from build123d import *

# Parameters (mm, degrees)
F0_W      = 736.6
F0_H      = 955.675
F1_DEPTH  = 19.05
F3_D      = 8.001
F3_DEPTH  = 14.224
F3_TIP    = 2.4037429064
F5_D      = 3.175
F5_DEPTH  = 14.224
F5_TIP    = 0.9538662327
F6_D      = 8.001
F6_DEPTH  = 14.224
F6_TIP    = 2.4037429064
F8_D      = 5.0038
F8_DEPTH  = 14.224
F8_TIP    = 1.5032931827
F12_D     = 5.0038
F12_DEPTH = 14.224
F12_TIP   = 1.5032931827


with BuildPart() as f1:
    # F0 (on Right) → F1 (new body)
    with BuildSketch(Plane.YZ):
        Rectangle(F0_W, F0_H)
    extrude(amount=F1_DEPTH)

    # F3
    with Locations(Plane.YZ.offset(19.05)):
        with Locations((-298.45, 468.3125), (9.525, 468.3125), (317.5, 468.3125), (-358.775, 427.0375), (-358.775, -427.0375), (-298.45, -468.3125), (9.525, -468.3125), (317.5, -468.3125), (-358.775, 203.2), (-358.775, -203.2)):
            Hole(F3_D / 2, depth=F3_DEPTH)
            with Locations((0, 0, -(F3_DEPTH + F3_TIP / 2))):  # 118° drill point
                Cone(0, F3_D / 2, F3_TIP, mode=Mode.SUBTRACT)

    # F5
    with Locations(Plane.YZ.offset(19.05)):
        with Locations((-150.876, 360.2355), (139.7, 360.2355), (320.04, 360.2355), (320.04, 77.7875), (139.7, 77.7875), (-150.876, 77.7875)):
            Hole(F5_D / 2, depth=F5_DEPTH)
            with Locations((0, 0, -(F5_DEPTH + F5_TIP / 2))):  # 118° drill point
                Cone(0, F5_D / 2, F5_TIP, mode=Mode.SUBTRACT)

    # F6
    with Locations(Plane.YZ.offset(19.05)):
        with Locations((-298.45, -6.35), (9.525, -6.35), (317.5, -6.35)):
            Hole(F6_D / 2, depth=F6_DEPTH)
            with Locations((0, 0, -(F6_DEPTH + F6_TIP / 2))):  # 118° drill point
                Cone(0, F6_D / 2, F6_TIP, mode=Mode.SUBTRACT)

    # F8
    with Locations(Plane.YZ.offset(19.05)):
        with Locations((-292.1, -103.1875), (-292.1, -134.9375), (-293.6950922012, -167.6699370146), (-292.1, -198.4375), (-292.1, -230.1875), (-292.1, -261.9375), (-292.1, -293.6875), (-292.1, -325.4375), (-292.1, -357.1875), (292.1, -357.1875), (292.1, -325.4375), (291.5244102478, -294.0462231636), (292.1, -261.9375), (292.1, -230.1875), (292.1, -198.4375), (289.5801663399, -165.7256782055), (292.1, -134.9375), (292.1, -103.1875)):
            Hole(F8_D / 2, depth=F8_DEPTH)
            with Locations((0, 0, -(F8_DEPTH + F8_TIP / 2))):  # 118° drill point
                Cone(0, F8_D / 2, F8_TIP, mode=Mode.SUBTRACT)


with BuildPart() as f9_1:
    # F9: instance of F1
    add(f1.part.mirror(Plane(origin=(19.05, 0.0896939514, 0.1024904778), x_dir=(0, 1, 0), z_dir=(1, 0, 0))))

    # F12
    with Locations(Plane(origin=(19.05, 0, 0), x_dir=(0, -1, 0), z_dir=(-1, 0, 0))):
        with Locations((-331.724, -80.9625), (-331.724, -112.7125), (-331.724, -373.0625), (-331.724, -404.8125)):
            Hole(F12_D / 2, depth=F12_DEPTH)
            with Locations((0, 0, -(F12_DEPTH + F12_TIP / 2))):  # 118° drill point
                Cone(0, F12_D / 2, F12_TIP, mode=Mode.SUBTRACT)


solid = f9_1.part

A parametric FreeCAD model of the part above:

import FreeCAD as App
import Part
import Sketcher

V = App.Vector
Q = App.Units.Quantity

doc = App.newDocument("Part")
body = doc.addObject("PartDesign::Body", "Body")

# Sketch on YZ plane
sketch1 = body.newObject("Sketcher::SketchObject", "Sketch")
sketch1.AttachmentSupport = (doc.getObject("YZ_Plane"), [""])
sketch1.MapMode = "FlatFace"
sketch1.addGeometry(Part.LineSegment(V(-368, 478, 0), V(-368, -478, 0)), False)
sketch1.addGeometry(Part.LineSegment(V(-368, -478, 0), V(368, -478, 0)), False)
sketch1.addGeometry(Part.LineSegment(V(368, -478, 0), V(368, 478, 0)), False)
sketch1.addGeometry(Part.LineSegment(V(368, 478, 0), V(-368, 478, 0)), False)
sketch1.addConstraint(Sketcher.Constraint("Coincident", 0, 2, 1, 1))
sketch1.addConstraint(Sketcher.Constraint("Coincident", 1, 2, 2, 1))
sketch1.addConstraint(Sketcher.Constraint("Coincident", 2, 2, 3, 1))
sketch1.addConstraint(Sketcher.Constraint("Coincident", 3, 2, 0, 1))
sketch1.addConstraint(Sketcher.Constraint("Vertical", 0))
sketch1.addConstraint(Sketcher.Constraint("Horizontal", 1))
sketch1.addConstraint(Sketcher.Constraint("Vertical", 2))
sketch1.addConstraint(Sketcher.Constraint("Horizontal", 3))
sketch1.addConstraint(Sketcher.Constraint("Symmetric", 0, 2, 2, 2, -1, 1))
sketch1.addConstraint(Sketcher.Constraint("DistanceX", 1, 1, 1, 2, Q("29 in")))
sketch1.addConstraint(Sketcher.Constraint("DistanceY", 0, 2, 0, 1, Q("37.625 in")))
pad1 = body.newObject("PartDesign::Pad", "Pad")
pad1.Profile = sketch1
pad1.Length = Q("0.75 in")

# Sketch on YZ plane
sketch2 = body.newObject("Sketcher::SketchObject", "Sketch001")
sketch2.AttachmentSupport = (doc.getObject("YZ_Plane"), [""])
sketch2.MapMode = "FlatFace"
sketch2.AttachmentOffset = App.Placement(V(0, 0, 0.75 * 25.4), App.Rotation())
sketch2.addGeometry(Part.Circle(V(-298.4, 468.3, 0), V(0, 0, 1), 4), False)
sketch2.addGeometry(Part.Circle(V(9.5, 468.3, 0), V(0, 0, 1), 4), False)
sketch2.addGeometry(Part.Circle(V(317.5, 468.3, 0), V(0, 0, 1), 4), False)
sketch2.addGeometry(Part.Circle(V(-358.8, 427, 0), V(0, 0, 1), 4), False)
sketch2.addGeometry(Part.Circle(V(-358.8, -427, 0), V(0, 0, 1), 4), False)
sketch2.addGeometry(Part.Circle(V(-298.4, -468.3, 0), V(0, 0, 1), 4), False)
sketch2.addGeometry(Part.Circle(V(9.5, -468.3, 0), V(0, 0, 1), 4), False)
sketch2.addGeometry(Part.Circle(V(317.5, -468.3, 0), V(0, 0, 1), 4), False)
sketch2.addGeometry(Part.Circle(V(-358.8, 203.2, 0), V(0, 0, 1), 4), False)
sketch2.addGeometry(Part.Circle(V(-358.8, -203.2, 0), V(0, 0, 1), 4), False)
sketch2.addConstraint(Sketcher.Constraint("Equal", 0, 1))
sketch2.addConstraint(Sketcher.Constraint("Equal", 1, 2))
sketch2.addConstraint(Sketcher.Constraint("Equal", 2, 3))
sketch2.addConstraint(Sketcher.Constraint("Equal", 3, 4))
sketch2.addConstraint(Sketcher.Constraint("Equal", 4, 5))
sketch2.addConstraint(Sketcher.Constraint("Equal", 5, 6))
sketch2.addConstraint(Sketcher.Constraint("Equal", 6, 7))
sketch2.addConstraint(Sketcher.Constraint("Equal", 7, 8))
sketch2.addConstraint(Sketcher.Constraint("Equal", 8, 9))
sketch2.addConstraint(Sketcher.Constraint("Symmetric", 3, 3, 4, 3, -1))
sketch2.addConstraint(Sketcher.Constraint("Symmetric", 0, 3, 5, 3, -1))
sketch2.addConstraint(Sketcher.Constraint("Symmetric", 1, 3, 6, 3, -1))
sketch2.addConstraint(Sketcher.Constraint("Symmetric", 2, 3, 7, 3, -1))
sketch2.addConstraint(Sketcher.Constraint("Symmetric", 8, 3, 9, 3, -1))
sketch2.addConstraint(Sketcher.Constraint("Horizontal", 0, 3, 1, 3))
sketch2.addConstraint(Sketcher.Constraint("Horizontal", 1, 3, 2, 3))
sketch2.addConstraint(Sketcher.Constraint("Vertical", 4, 3, 8, 3))
sketch2.addConstraint(Sketcher.Constraint("Diameter", 0, Q("0.315 in")))
sketch2.addConstraint(Sketcher.Constraint("DistanceY", -1, 1, 8, 3, Q("8 in")))
sketch2.addConstraint(Sketcher.Constraint("DistanceX", -1, 1, 2, 3, Q("12.5 in")))
sketch2.addConstraint(Sketcher.Constraint("DistanceX", 3, 3, 1, 3, Q("14.5 in")))
sketch2.addConstraint(Sketcher.Constraint("DistanceX", 0, 3, -1, 1, Q("11.75 in")))
sketch2.addConstraint(Sketcher.Constraint("DistanceY", 4, 3, 0, 3, Q("35.25 in")))
sketch2.addConstraint(Sketcher.Constraint("DistanceY", -1, 1, 0, 3, Q("18.4375 in")))
sketch2.addConstraint(Sketcher.Constraint("DistanceX", -1, 1, 1, 3, Q("0.375 in")))
doc.recompute()
hole = body.newObject("PartDesign::Hole", "Hole")
hole.Profile = sketch2
hole.ThreadType = "None"
hole.Diameter = Q("0.315 in")
hole.DepthType = "Dimension"
hole.Depth = Q("0.56 in")
hole.DrillPoint = "Angled"
hole.DrillPointAngle = 118

# Sketch on YZ plane
sketch3 = body.newObject("Sketcher::SketchObject", "Sketch002")
sketch3.AttachmentSupport = (doc.getObject("YZ_Plane"), [""])
sketch3.MapMode = "FlatFace"
sketch3.AttachmentOffset = App.Placement(V(0, 0, 0.75 * 25.4), App.Rotation())
sketch3.addGeometry(Part.Circle(V(-150.9, 360.2, 0), V(0, 0, 1), 1.6), False)
sketch3.addGeometry(Part.Circle(V(139.7, 360.2, 0), V(0, 0, 1), 1.6), False)
sketch3.addGeometry(Part.Circle(V(320, 360.2, 0), V(0, 0, 1), 1.6), False)
sketch3.addGeometry(Part.Circle(V(320, 77.8, 0), V(0, 0, 1), 1.6), False)
sketch3.addGeometry(Part.Circle(V(139.7, 77.8, 0), V(0, 0, 1), 1.6), False)
sketch3.addGeometry(Part.Circle(V(-150.9, 77.8, 0), V(0, 0, 1), 1.6), False)
sketch3.addConstraint(Sketcher.Constraint("Equal", 0, 1))
sketch3.addConstraint(Sketcher.Constraint("Equal", 1, 2))
sketch3.addConstraint(Sketcher.Constraint("Equal", 2, 3))
sketch3.addConstraint(Sketcher.Constraint("Equal", 3, 4))
sketch3.addConstraint(Sketcher.Constraint("Equal", 4, 5))
sketch3.addConstraint(Sketcher.Constraint("Horizontal", 0, 3, 1, 3))
sketch3.addConstraint(Sketcher.Constraint("Horizontal", 1, 3, 2, 3))
sketch3.addConstraint(Sketcher.Constraint("Horizontal", 3, 3, 4, 3))
sketch3.addConstraint(Sketcher.Constraint("Horizontal", 4, 3, 5, 3))
sketch3.addConstraint(Sketcher.Constraint("Vertical", 2, 3, 3, 3))
sketch3.addConstraint(Sketcher.Constraint("Vertical", 1, 3, 4, 3))
sketch3.addConstraint(Sketcher.Constraint("Vertical", 0, 3, 5, 3))
sketch3.addConstraint(Sketcher.Constraint("Diameter", 0, Q("0.125 in")))
sketch3.addConstraint(Sketcher.Constraint("DistanceX", -1, 1, 1, 3, Q("5.5 in")))
sketch3.addConstraint(Sketcher.Constraint("DistanceX", -1, 1, 2, 3, Q("12.6 in")))
sketch3.addConstraint(Sketcher.Constraint("DistanceX", 0, 3, -1, 1, Q("5.94 in")))
sketch3.addConstraint(Sketcher.Constraint("DistanceY", 3, 3, 2, 3, Q("11.12 in")))
sketch3.addConstraint(Sketcher.Constraint("DistanceY", -1, 1, 3, 3, Q("3.0625 in")))
doc.recompute()
hole2 = body.newObject("PartDesign::Hole", "Hole001")
hole2.Profile = sketch3
hole2.ThreadType = "None"
hole2.Diameter = Q("0.125 in")
hole2.DepthType = "Dimension"
hole2.Depth = Q("0.56 in")
hole2.DrillPoint = "Angled"
hole2.DrillPointAngle = 118

# Sketch on YZ plane
sketch4 = body.newObject("Sketcher::SketchObject", "Sketch003")
sketch4.AttachmentSupport = (doc.getObject("YZ_Plane"), [""])
sketch4.MapMode = "FlatFace"
sketch4.AttachmentOffset = App.Placement(V(0, 0, 0.75 * 25.4), App.Rotation())
sketch4.addGeometry(Part.Circle(V(-298.4, -6.3, 0), V(0, 0, 1), 4), False)
sketch4.addGeometry(Part.Circle(V(9.5, -6.3, 0), V(0, 0, 1), 4), False)
sketch4.addGeometry(Part.Circle(V(317.5, -6.3, 0), V(0, 0, 1), 4), False)
sketch4.addConstraint(Sketcher.Constraint("Equal", 0, 1))
sketch4.addConstraint(Sketcher.Constraint("Equal", 1, 2))
sketch4.addConstraint(Sketcher.Constraint("Horizontal", 0, 3, 1, 3))
sketch4.addConstraint(Sketcher.Constraint("Horizontal", 1, 3, 2, 3))
sketch4.addConstraint(Sketcher.Constraint("Diameter", 0, Q("0.315 in")))
sketch4.addConstraint(Sketcher.Constraint("DistanceX", -1, 1, 2, 3, Q("12.5 in")))
sketch4.addConstraint(Sketcher.Constraint("DistanceX", 0, 3, -1, 1, Q("11.75 in")))
sketch4.addConstraint(Sketcher.Constraint("DistanceY", 0, 3, -1, 1, Q("0.25 in")))
sketch4.addConstraint(Sketcher.Constraint("DistanceX", -1, 1, 1, 3, Q("0.375 in")))
doc.recompute()
hole3 = body.newObject("PartDesign::Hole", "Hole002")
hole3.Profile = sketch4
hole3.ThreadType = "None"
hole3.Diameter = Q("0.315 in")
hole3.DepthType = "Dimension"
hole3.Depth = Q("0.56 in")
hole3.DrillPoint = "Angled"
hole3.DrillPointAngle = 118

# Sketch on YZ plane
sketch5 = body.newObject("Sketcher::SketchObject", "Sketch004")
sketch5.AttachmentSupport = (doc.getObject("YZ_Plane"), [""])
sketch5.MapMode = "FlatFace"
sketch5.AttachmentOffset = App.Placement(V(0, 0, 0.75 * 25.4), App.Rotation())
sketch5.addGeometry(Part.Circle(V(-292.1, -103.2, 0), V(0, 0, 1), 2.5), False)
sketch5.addGeometry(Part.Circle(V(-292.1, -134.9, 0), V(0, 0, 1), 2.5), False)
sketch5.addGeometry(Part.Circle(V(-293.7, -167.7, 0), V(0, 0, 1), 2.5), False)
sketch5.addGeometry(Part.Circle(V(-292.1, -198.4, 0), V(0, 0, 1), 2.5), False)
sketch5.addGeometry(Part.Circle(V(-292.1, -230.2, 0), V(0, 0, 1), 2.5), False)
sketch5.addGeometry(Part.Circle(V(-292.1, -261.9, 0), V(0, 0, 1), 2.5), False)
sketch5.addGeometry(Part.Circle(V(-292.1, -293.7, 0), V(0, 0, 1), 2.5), False)
sketch5.addGeometry(Part.Circle(V(-292.1, -325.4, 0), V(0, 0, 1), 2.5), False)
sketch5.addGeometry(Part.Circle(V(-292.1, -357.2, 0), V(0, 0, 1), 2.5), False)
sketch5.addGeometry(Part.Circle(V(292.1, -357.2, 0), V(0, 0, 1), 2.5), False)
sketch5.addGeometry(Part.Circle(V(292.1, -325.4, 0), V(0, 0, 1), 2.5), False)
sketch5.addGeometry(Part.Circle(V(291.5, -294, 0), V(0, 0, 1), 2.5), False)
sketch5.addGeometry(Part.Circle(V(292.1, -261.9, 0), V(0, 0, 1), 2.5), False)
sketch5.addGeometry(Part.Circle(V(292.1, -230.2, 0), V(0, 0, 1), 2.5), False)
sketch5.addGeometry(Part.Circle(V(292.1, -198.4, 0), V(0, 0, 1), 2.5), False)
sketch5.addGeometry(Part.Circle(V(289.6, -165.7, 0), V(0, 0, 1), 2.5), False)
sketch5.addGeometry(Part.Circle(V(292.1, -134.9, 0), V(0, 0, 1), 2.5), False)
sketch5.addGeometry(Part.Circle(V(292.1, -103.2, 0), V(0, 0, 1), 2.5), False)
sketch5.addConstraint(Sketcher.Constraint("Equal", 0, 1))
sketch5.addConstraint(Sketcher.Constraint("Equal", 1, 2))
sketch5.addConstraint(Sketcher.Constraint("Equal", 2, 3))
sketch5.addConstraint(Sketcher.Constraint("Equal", 3, 4))
sketch5.addConstraint(Sketcher.Constraint("Equal", 4, 5))
sketch5.addConstraint(Sketcher.Constraint("Equal", 5, 6))
sketch5.addConstraint(Sketcher.Constraint("Equal", 6, 7))
sketch5.addConstraint(Sketcher.Constraint("Equal", 7, 8))
sketch5.addConstraint(Sketcher.Constraint("Equal", 8, 9))
sketch5.addConstraint(Sketcher.Constraint("Equal", 9, 10))
sketch5.addConstraint(Sketcher.Constraint("Equal", 10, 11))
sketch5.addConstraint(Sketcher.Constraint("Equal", 11, 12))
sketch5.addConstraint(Sketcher.Constraint("Equal", 12, 13))
sketch5.addConstraint(Sketcher.Constraint("Equal", 13, 14))
sketch5.addConstraint(Sketcher.Constraint("Equal", 14, 15))
sketch5.addConstraint(Sketcher.Constraint("Equal", 15, 16))
sketch5.addConstraint(Sketcher.Constraint("Equal", 16, 17))
sketch5.addConstraint(Sketcher.Constraint("Symmetric", 8, 3, 9, 3, -2))
sketch5.addConstraint(Sketcher.Constraint("Symmetric", 7, 3, 10, 3, -2))
sketch5.addConstraint(Sketcher.Constraint("Symmetric", 5, 3, 12, 3, -2))
sketch5.addConstraint(Sketcher.Constraint("Symmetric", 4, 3, 13, 3, -2))
sketch5.addConstraint(Sketcher.Constraint("Symmetric", 3, 3, 14, 3, -2))
sketch5.addConstraint(Sketcher.Constraint("Symmetric", 1, 3, 16, 3, -2))
sketch5.addConstraint(Sketcher.Constraint("Symmetric", 0, 3, 17, 3, -2))
sketch5.addConstraint(Sketcher.Constraint("Vertical", 0, 3, 1, 3))
sketch5.addConstraint(Sketcher.Constraint("Vertical", 1, 3, 3, 3))
sketch5.addConstraint(Sketcher.Constraint("Vertical", 3, 3, 4, 3))
sketch5.addConstraint(Sketcher.Constraint("Vertical", 4, 3, 5, 3))
sketch5.addConstraint(Sketcher.Constraint("Vertical", 5, 3, 6, 3))
sketch5.addConstraint(Sketcher.Constraint("Vertical", 6, 3, 7, 3))
sketch5.addConstraint(Sketcher.Constraint("Vertical", 7, 3, 8, 3))
sketch5.addConstraint(Sketcher.Constraint("Diameter", 0, Q("0.197 in")))
sketch5.addConstraint(Sketcher.Constraint("DistanceY", 4, 3, 0, 3, Q("5 in")))
sketch5.addConstraint(Sketcher.Constraint("DistanceY", 5, 3, 1, 3, Q("5 in")))
sketch5.addConstraint(Sketcher.Constraint("DistanceY", 7, 3, 3, 3, Q("5 in")))
sketch5.addConstraint(Sketcher.Constraint("DistanceY", 8, 3, 4, 3, Q("5 in")))
sketch5.addConstraint(Sketcher.Constraint("DistanceX", 8, 3, 9, 3, Q("23 in")))
sketch5.addConstraint(Sketcher.Constraint("DistanceY", 3, 3, 1, 3, Q("2.5 in")))
sketch5.addConstraint(Sketcher.Constraint("DistanceY", 6, 3, 4, 3, Q("2.5 in")))
sketch5.addConstraint(Sketcher.Constraint("DistanceY", 1, 3, 0, 3, Q("1.25 in")))
sketch5.addConstraint(Sketcher.Constraint("DistanceY", 0, 3, -1, 1, Q("4.0625 in")))
sketch5.addConstraint(Sketcher.Constraint("DistanceX", -1, 1, 11, 3, 291.52441))
sketch5.addConstraint(Sketcher.Constraint("DistanceY", 15, 3, -1, 1, 165.725678))
sketch5.addConstraint(Sketcher.Constraint("DistanceX", 2, 3, -1, 1, 293.695092))
sketch5.addConstraint(Sketcher.Constraint("DistanceY", 2, 3, -1, 1, 167.669937))
sketch5.addConstraint(Sketcher.Constraint("DistanceY", 11, 3, -1, 1, 294.046223))
sketch5.addConstraint(Sketcher.Constraint("DistanceX", -1, 1, 15, 3, 289.580166))
doc.recompute()
hole4 = body.newObject("PartDesign::Hole", "Hole003")
hole4.Profile = sketch5
hole4.ThreadType = "None"
hole4.Diameter = Q("0.197 in")
hole4.DepthType = "Dimension"
hole4.Depth = Q("0.56 in")
hole4.DrillPoint = "Angled"
hole4.DrillPointAngle = 118
body2 = doc.addObject("PartDesign::Body", "Body001")
doc.recompute()

mirroring = doc.addObject("Part::Mirroring", "Mirroring")
mirroring.Source = body
mirroring.Base = V(19.05, 0.089694, 0.10249)
mirroring.Normal = V(1, 0, 0)
body2.BaseFeature = mirroring
doc.recompute()

# Sketch on YZ plane
sketch6 = body2.newObject("Sketcher::SketchObject", "Sketch005")
sketch6.AttachmentSupport = (doc.getObject("YZ_Plane001"), [""])
sketch6.MapMode = "FlatFace"
sketch6.AttachmentOffset = App.Placement(V(0, 0, 0.75 * 25.4), App.Rotation())
sketch6.addGeometry(Part.Circle(V(331.7, -81, 0), V(0, 0, 1), 2.5), False)
sketch6.addGeometry(Part.Circle(V(331.7, -112.7, 0), V(0, 0, 1), 2.5), False)
sketch6.addGeometry(Part.Circle(V(331.7, -373.1, 0), V(0, 0, 1), 2.5), False)
sketch6.addGeometry(Part.Circle(V(331.7, -404.8, 0), V(0, 0, 1), 2.5), False)
sketch6.addConstraint(Sketcher.Constraint("Equal", 0, 1))
sketch6.addConstraint(Sketcher.Constraint("Equal", 1, 2))
sketch6.addConstraint(Sketcher.Constraint("Equal", 2, 3))
sketch6.addConstraint(Sketcher.Constraint("Vertical", 0, 3, 1, 3))
sketch6.addConstraint(Sketcher.Constraint("Vertical", 1, 3, 2, 3))
sketch6.addConstraint(Sketcher.Constraint("Vertical", 2, 3, 3, 3))
sketch6.addConstraint(Sketcher.Constraint("Diameter", 0, Q("0.197 in")))
sketch6.addConstraint(Sketcher.Constraint("DistanceY", 2, 3, 0, 3, Q("11.5 in")))
sketch6.addConstraint(Sketcher.Constraint("DistanceY", 3, 3, 1, 3, Q("11.5 in")))
sketch6.addConstraint(Sketcher.Constraint("DistanceX", -1, 1, 0, 3, Q("13.06 in")))
sketch6.addConstraint(Sketcher.Constraint("DistanceY", 1, 3, 0, 3, Q("1.25 in")))
sketch6.addConstraint(Sketcher.Constraint("DistanceY", 0, 3, -1, 1, Q("3.1875 in")))
doc.recompute()
hole5 = body2.newObject("PartDesign::Hole", "Hole004")
hole5.Profile = sketch6
hole5.ThreadType = "None"
hole5.Diameter = Q("0.197 in")
hole5.DepthType = "Dimension"
hole5.Depth = Q("0.56 in")
hole5.DrillPoint = "Angled"
hole5.DrillPointAngle = 118
hole5.Reversed = True
body.Visibility = False
mirroring.Visibility = False

doc.recompute()
